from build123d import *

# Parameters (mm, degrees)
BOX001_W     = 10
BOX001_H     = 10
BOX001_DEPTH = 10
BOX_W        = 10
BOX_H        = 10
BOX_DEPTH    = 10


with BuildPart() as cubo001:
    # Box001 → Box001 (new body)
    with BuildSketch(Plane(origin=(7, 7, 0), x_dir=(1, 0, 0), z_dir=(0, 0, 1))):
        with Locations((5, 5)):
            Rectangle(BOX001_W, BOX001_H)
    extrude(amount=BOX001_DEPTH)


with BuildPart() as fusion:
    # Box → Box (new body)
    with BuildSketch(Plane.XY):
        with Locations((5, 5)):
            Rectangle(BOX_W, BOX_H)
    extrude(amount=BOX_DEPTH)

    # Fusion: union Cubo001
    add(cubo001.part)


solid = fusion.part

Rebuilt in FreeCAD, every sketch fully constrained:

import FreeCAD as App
import Part
import Sketcher
Q = App.Units.Quantity

doc = App.newDocument("Part")
params = doc.addObject("Spreadsheet::Sheet", "Params")
for row, (alias, value) in enumerate([
    ("sketch1_width", "10 mm"),
    ("pad1_length", "10 mm"),
    ("sketch2_width", "10 mm"),
    ("pad2_length", "10 mm"),
], start=1):
    params.set(f"A{row}", alias)
    params.set(f"B{row}", "=" + value)
    params.setAlias(f"B{row}", alias)

body = doc.addObject("PartDesign::Body", "Body")

# Sketch on XY plane
sketch1 = body.newObject("Sketcher::SketchObject", "Sketch")
sketch1.AttachmentSupport = (doc.getObject("XY_Plane"), [""])
sketch1.MapMode = "FlatFace"
sketch1.addGeometry([
    Part.LineSegment(App.Vector(7, 17, 0), App.Vector(7, 7, 0)),
    Part.LineSegment(App.Vector(7, 7, 0), App.Vector(17, 7, 0)),
    Part.LineSegment(App.Vector(17, 7, 0), App.Vector(17, 17, 0)),
    Part.LineSegment(App.Vector(17, 17, 0), App.Vector(7, 17, 0)),
], False)
sketch1.addConstraint([
    Sketcher.Constraint("Coincident", 0, 2, 1, 1),
    Sketcher.Constraint("Coincident", 1, 2, 2, 1),
    Sketcher.Constraint("Coincident", 2, 2, 3, 1),
    Sketcher.Constraint("Coincident", 3, 2, 0, 1),
    Sketcher.Constraint("Vertical", 0),
    Sketcher.Constraint("Horizontal", 1),
    Sketcher.Constraint("Vertical", 2),
    Sketcher.Constraint("Horizontal", 3),
    Sketcher.Constraint("Equal", 3, 0),
    Sketcher.Constraint("DistanceX", 1, 1, 1, 2, Q("10 mm")),
    Sketcher.Constraint("DistanceX", -1, 1, 0, 2, Q("7 mm")),
    Sketcher.Constraint("DistanceY", -1, 1, 0, 2, Q("7 mm")),
])
sketch1.setExpression("Constraints[9]", "Params.sketch1_width")
pad1 = body.newObject("PartDesign::Pad", "Pad")
pad1.Profile = sketch1
pad1.setExpression("Length", "Params.pad1_length")
body2 = doc.addObject("PartDesign::Body", "Body001")

# Sketch on XY plane
sketch2 = body2.newObject("Sketcher::SketchObject", "Sketch001")
sketch2.AttachmentSupport = (doc.getObject("XY_Plane001"), [""])
sketch2.MapMode = "FlatFace"
sketch2.addGeometry([
    Part.LineSegment(App.Vector(0, 10, 0), App.Vector(0, 0, 0)),
    Part.LineSegment(App.Vector(0, 0, 0), App.Vector(10, 0, 0)),
    Part.LineSegment(App.Vector(10, 0, 0), App.Vector(10, 10, 0)),
    Part.LineSegment(App.Vector(10, 10, 0), App.Vector(0, 10, 0)),
], False)
sketch2.addConstraint([
    Sketcher.Constraint("Coincident", 0, 2, 1, 1),
    Sketcher.Constraint("Coincident", 1, 2, 2, 1),
    Sketcher.Constraint("Coincident", 2, 2, 3, 1),
    Sketcher.Constraint("Coincident", 3, 2, 0, 1),
    Sketcher.Constraint("Vertical", 0),
    Sketcher.Constraint("Horizontal", 1),
    Sketcher.Constraint("Vertical", 2),
    Sketcher.Constraint("Horizontal", 3),
    Sketcher.Constraint("Coincident", 0, 2, -1, 1),
    Sketcher.Constraint("Equal", 3, 0),
    Sketcher.Constraint("DistanceX", 1, 1, 1, 2, Q("10 mm")),
])
sketch2.setExpression("Constraints[10]", "Params.sketch2_width")
pad2 = body2.newObject("PartDesign::Pad", "Pad001")
pad2.Profile = sketch2
pad2.setExpression("Length", "Params.pad2_length")
doc.recompute()

boolean = body2.newObject("PartDesign::Boolean", "Boolean")
boolean.Type = "Fuse"
boolean.addObjects([body])

doc.recompute()
